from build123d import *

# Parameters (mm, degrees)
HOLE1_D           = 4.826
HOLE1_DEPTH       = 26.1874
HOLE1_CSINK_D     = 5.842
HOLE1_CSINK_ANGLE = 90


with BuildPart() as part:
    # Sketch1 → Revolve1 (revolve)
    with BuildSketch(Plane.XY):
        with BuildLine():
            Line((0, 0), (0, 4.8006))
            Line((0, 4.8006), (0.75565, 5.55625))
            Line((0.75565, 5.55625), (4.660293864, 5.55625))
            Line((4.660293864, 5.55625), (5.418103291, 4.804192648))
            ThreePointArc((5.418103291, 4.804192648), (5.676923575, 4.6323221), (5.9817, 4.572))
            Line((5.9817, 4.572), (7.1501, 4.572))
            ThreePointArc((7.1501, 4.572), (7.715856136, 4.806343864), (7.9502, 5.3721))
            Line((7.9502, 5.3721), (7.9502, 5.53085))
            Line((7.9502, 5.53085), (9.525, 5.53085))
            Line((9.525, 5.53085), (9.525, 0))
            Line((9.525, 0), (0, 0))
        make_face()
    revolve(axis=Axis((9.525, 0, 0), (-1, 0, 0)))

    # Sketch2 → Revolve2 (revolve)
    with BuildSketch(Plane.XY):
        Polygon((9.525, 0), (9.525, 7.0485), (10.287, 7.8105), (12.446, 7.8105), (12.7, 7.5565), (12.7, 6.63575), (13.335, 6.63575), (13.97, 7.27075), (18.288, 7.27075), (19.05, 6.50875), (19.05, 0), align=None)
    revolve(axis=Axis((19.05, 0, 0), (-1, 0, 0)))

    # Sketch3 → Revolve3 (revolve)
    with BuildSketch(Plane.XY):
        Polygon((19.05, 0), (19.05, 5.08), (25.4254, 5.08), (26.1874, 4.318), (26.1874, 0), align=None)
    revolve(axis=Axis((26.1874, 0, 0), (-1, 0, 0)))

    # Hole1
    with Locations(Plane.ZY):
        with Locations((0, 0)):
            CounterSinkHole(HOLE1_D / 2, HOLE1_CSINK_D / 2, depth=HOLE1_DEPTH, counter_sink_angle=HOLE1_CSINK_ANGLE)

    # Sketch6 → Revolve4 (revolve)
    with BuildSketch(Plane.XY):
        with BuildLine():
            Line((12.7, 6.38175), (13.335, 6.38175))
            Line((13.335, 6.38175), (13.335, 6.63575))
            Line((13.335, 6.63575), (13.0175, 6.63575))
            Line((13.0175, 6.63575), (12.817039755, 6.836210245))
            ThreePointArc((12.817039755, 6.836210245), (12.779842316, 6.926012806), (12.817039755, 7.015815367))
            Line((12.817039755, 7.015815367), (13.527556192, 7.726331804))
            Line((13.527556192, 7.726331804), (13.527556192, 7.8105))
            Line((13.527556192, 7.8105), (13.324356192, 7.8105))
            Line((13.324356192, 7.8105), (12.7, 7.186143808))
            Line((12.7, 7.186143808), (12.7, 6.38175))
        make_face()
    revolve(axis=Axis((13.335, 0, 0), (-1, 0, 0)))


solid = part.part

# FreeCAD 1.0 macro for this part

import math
import FreeCAD as App
import Part
import Sketcher
Q = App.Units.Quantity


def add_polygon(sketch, points):
    """Adds a closed chain of lines whose ends are joined by coincident constraints."""
    first, n = sketch.GeometryCount, len(points)
    for a, b in zip(points, points[1:] + points[:1]):
        sketch.addGeometry(Part.LineSegment(App.Vector(*a, 0), App.Vector(*b, 0)), False)
    for i in range(n):
        sketch.addConstraint(Sketcher.Constraint("Coincident", first + i, 2, first + (i + 1) % n, 1))

doc = App.newDocument("Part")
body = doc.addObject("PartDesign::Body", "Body")

# Sketch on XY plane
sketch1 = doc.addObject("Sketcher::SketchObject", "Sketch")
body.addObject(sketch1)
sketch1.AttachmentSupport = (doc.XY_Plane, [""])
sketch1.MapMode = "FlatFace"
sketch1.addGeometry([
    Part.LineSegment(App.Vector(0, 4.8, 0), App.Vector(0, 0, 0)),  # 0
    Part.LineSegment(App.Vector(0, 0, 0), App.Vector(9.53, 0, 0)),  # 1
    Part.LineSegment(App.Vector(9.53, 0, 0), App.Vector(9.53, 5.53, 0)),  # 2
    Part.LineSegment(App.Vector(9.53, 5.53, 0), App.Vector(7.95, 5.53, 0)),  # 3
    Part.LineSegment(App.Vector(7.95, 5.53, 0), App.Vector(7.95, 5.37, 0)),  # 4
    Part.ArcOfCircle(Part.Circle(App.Vector(7.15, 5.37, 0), App.Vector(0, 0, 1), 0.8), math.radians(-90), math.radians(0)),  # 5
    Part.LineSegment(App.Vector(7.15, 4.57, 0), App.Vector(5.98, 4.57, 0)),  # 6
    Part.ArcOfCircle(Part.Circle(App.Vector(5.98, 5.37, 0), App.Vector(0, 0, 1), 0.8), math.radians(-135), math.radians(-90)),  # 7
    Part.LineSegment(App.Vector(5.42, 4.8, 0), App.Vector(4.66, 5.56, 0)),  # 8
    Part.LineSegment(App.Vector(4.66, 5.56, 0), App.Vector(0.76, 5.56, 0)),  # 9
    Part.LineSegment(App.Vector(0.76, 5.56, 0), App.Vector(0, 4.8, 0)),  # 10
], False)
sketch1.addConstraint([
    Sketcher.Constraint("Coincident", 0, 2, 1, 1),
    Sketcher.Constraint("Coincident", 1, 2, 2, 1),
    Sketcher.Constraint("Coincident", 2, 2, 3, 1),
    Sketcher.Constraint("Coincident", 3, 2, 4, 1),
    Sketcher.Constraint("Tangent", 4, 2, 5, 2),
    Sketcher.Constraint("Tangent", 5, 1, 6, 1),
    Sketcher.Constraint("Tangent", 6, 2, 7, 2),
    Sketcher.Constraint("Tangent", 7, 1, 8, 1),
    Sketcher.Constraint("Coincident", 8, 2, 9, 1),
    Sketcher.Constraint("Coincident", 9, 2, 10, 1),
    Sketcher.Constraint("Coincident", 10, 2, 0, 1),
    Sketcher.Constraint("Vertical", 0),
    Sketcher.Constraint("Horizontal", 1),
    Sketcher.Constraint("Vertical", 2),
    Sketcher.Constraint("Horizontal", 3),
    Sketcher.Constraint("Vertical", 4),
    Sketcher.Constraint("Horizontal", 6),
    Sketcher.Constraint("Horizontal", 9),
    Sketcher.Constraint("Coincident", 0, 2, -1, 1),
    Sketcher.Constraint("Equal", 5, 7),
    Sketcher.Constraint("Angle", 10, Q("-135 deg")),
    Sketcher.Constraint("Radius", 5, Q("0.0315 in")),
    Sketcher.Constraint("DistanceX", 1, 1, 1, 2, Q("0.375 in")),
    Sketcher.Constraint("DistanceX", 3, 2, 3, 1, Q("0.062 in")),
    Sketcher.Constraint("DistanceX", 6, 2, 6, 1, Q("0.046 in")),
    Sketcher.Constraint("DistanceY", 0, 2, 0, 1, Q("0.189 in")),
    Sketcher.Constraint("DistanceY", -1, 1, 5, 1, Q("0.18 in")),
    Sketcher.Constraint("DistanceY", -1, 1, 8, 2, Q("0.21875 in")),
    Sketcher.Constraint("DistanceY", 2, 1, 2, 2, Q("5.53085 mm")),
    Sketcher.Constraint("DistanceX", 9, 2, 9, 1, Q("3.904644 mm")),
])
revolution = doc.addObject("PartDesign::Revolution", "Revolution")
body.addObject(revolution)
revolution.Profile = sketch1
revolution.ReferenceAxis = (sketch1, ["H_Axis"])
revolution.Angle = 360

# Sketch on XY plane
sketch2 = doc.addObject("Sketcher::SketchObject", "Sketch001")
body.addObject(sketch2)
sketch2.AttachmentSupport = (doc.XY_Plane, [""])
sketch2.MapMode = "FlatFace"
add_polygon(sketch2, [(9.53, 7.05), (9.53, 0), (19.05, 0), (19.05, 6.51), (18.29, 7.27), (13.97, 7.27), (13.34, 6.64), (12.7, 6.64), (12.7, 7.56), (12.45, 7.81), (10.29, 7.81)])  # lines 0-10
sketch2.addConstraint([
    Sketcher.Constraint("Vertical", 0),
    Sketcher.Constraint("Horizontal", 1),
    Sketcher.Constraint("Vertical", 2),
    Sketcher.Constraint("Horizontal", 4),
    Sketcher.Constraint("Horizontal", 6),
    Sketcher.Constraint("Vertical", 7),
    Sketcher.Constraint("Horizontal", 9),
    Sketcher.Constraint("PointOnObject", 0, 2, -1),
    Sketcher.Constraint("Perpendicular", 3, 5),
    Sketcher.Constraint("Perpendicular", 5, 8),
    Sketcher.Constraint("Perpendicular", 8, 10),
    Sketcher.Constraint("Equal", 3, 10),
    Sketcher.Constraint("Angle", 3, Q("135 deg")),
    Sketcher.Constraint("DistanceX", 4, 2, 4, 1, Q("0.17 in")),
    Sketcher.Constraint("DistanceX", -1, 1, 6, 2, Q("0.5 in")),
    Sketcher.Constraint("DistanceX", 4, 2, 2, 2, Q("0.2 in")),
    Sketcher.Constraint("DistanceX", 1, 1, 1, 2, Q("0.375 in")),
    Sketcher.Constraint("DistanceX", 6, 2, 6, 1, Q("0.025 in")),
    Sketcher.Constraint("DistanceX", 9, 2, 9, 1, Q("0.085 in")),
    Sketcher.Constraint("DistanceX", -1, 1, 1, 2, Q("0.75 in")),
    Sketcher.Constraint("DistanceY", 0, 2, 0, 1, Q("0.2775 in")),
    Sketcher.Constraint("DistanceY", 2, 1, 2, 2, Q("6.50875 mm")),
])
revolution2 = doc.addObject("PartDesign::Revolution", "Revolution001")
body.addObject(revolution2)
revolution2.Profile = sketch2
revolution2.ReferenceAxis = (sketch2, ["H_Axis"])
revolution2.Angle = 360

# Sketch on XY plane
sketch3 = doc.addObject("Sketcher::SketchObject", "Sketch002")
body.addObject(sketch3)
sketch3.AttachmentSupport = (doc.XY_Plane, [""])
sketch3.MapMode = "FlatFace"
add_polygon(sketch3, [(19.1, 5.1), (19.1, 0), (26.2, 0), (26.2, 4.3), (25.4, 5.1)])  # lines 0-4
sketch3.addConstraint([
    Sketcher.Constraint("Vertical", 0),
    Sketcher.Constraint("Horizontal", 1),
    Sketcher.Constraint("Vertical", 2),
    Sketcher.Constraint("Horizontal", 4),
    Sketcher.Constraint("PointOnObject", 0, 2, -1),
    Sketcher.Constraint("DistanceY", 0, 2, 0, 1, Q("0.2 in")),
    Sketcher.Constraint("Angle", 3, Q("135 deg")),
    Sketcher.Constraint("DistanceY", 2, 1, 2, 2, Q("0.17 in")),
    Sketcher.Constraint("DistanceX", 1, 1, 1, 2, Q("0.281 in")),
    Sketcher.Constraint("DistanceX", -1, 1, 0, 2, Q("0.75 in")),
])
revolution3 = doc.addObject("PartDesign::Revolution", "Revolution002")
body.addObject(revolution3)
revolution3.Profile = sketch3
revolution3.ReferenceAxis = (sketch3, ["H_Axis"])
revolution3.Angle = 360

# Sketch on YZ plane
sketch4 = doc.addObject("Sketcher::SketchObject", "Sketch003")
body.addObject(sketch4)
sketch4.AttachmentSupport = (doc.YZ_Plane, [""])
sketch4.MapMode = "FlatFace"
sketch4.addGeometry(Part.Circle(App.Vector(0, 0, 0), App.Vector(0, 0, 1), 2.4), False)
sketch4.addConstraint([
    Sketcher.Constraint("Coincident", 0, 3, -1, 1),
    Sketcher.Constraint("Diameter", 0, Q("0.19 in")),
])
doc.recompute()
hole = doc.addObject("PartDesign::Hole", "Hole")
body.addObject(hole)
hole.Profile = sketch4
hole.ThreadType = "None"
hole.Diameter = Q("0.19 in")
hole.DepthType = "Dimension"
hole.Depth = Q("1.031 in")
hole.DrillPoint = "Flat"
hole.HoleCutType = "Countersink"
hole.HoleCutDiameter = Q("0.23 in")
hole.HoleCutCountersinkAngle = 90
hole.Reversed = True

# Sketch on XY plane
sketch5 = doc.addObject("Sketcher::SketchObject", "Sketch004")
body.addObject(sketch5)
sketch5.AttachmentSupport = (doc.XY_Plane, [""])
sketch5.MapMode = "FlatFace"
sketch5.addGeometry([
    Part.LineSegment(App.Vector(12.7, 6.38, 0), App.Vector(13.34, 6.38, 0)),  # 0
    Part.LineSegment(App.Vector(13.34, 6.38, 0), App.Vector(13.34, 6.64, 0)),  # 1
    Part.LineSegment(App.Vector(13.34, 6.64, 0), App.Vector(13.02, 6.64, 0)),  # 2
    Part.LineSegment(App.Vector(13.02, 6.64, 0), App.Vector(12.82, 6.84, 0)),  # 3
    Part.ArcOfCircle(Part.Circle(App.Vector(12.91, 6.93, 0), App.Vector(0, 0, 1), 0.13), math.radians(135), math.radians(225)),  # 4
    Part.LineSegment(App.Vector(12.82, 7.02, 0), App.Vector(13.53, 7.73, 0)),  # 5
    Part.LineSegment(App.Vector(13.53, 7.73, 0), App.Vector(13.53, 7.81, 0)),  # 6
    Part.LineSegment(App.Vector(13.53, 7.81, 0), App.Vector(13.32, 7.81, 0)),  # 7
    Part.LineSegment(App.Vector(13.32, 7.81, 0), App.Vector(12.7, 7.19, 0)),  # 8
    Part.LineSegment(App.Vector(12.7, 7.19, 0), App.Vector(12.7, 6.38, 0)),  # 9
], False)
sketch5.addConstraint([
    Sketcher.Constraint("Coincident", 0, 2, 1, 1),
    Sketcher.Constraint("Coincident", 1, 2, 2, 1),
    Sketcher.Constraint("Coincident", 2, 2, 3, 1),
    Sketcher.Constraint("Tangent", 3, 2, 4, 2),
    Sketcher.Constraint("Tangent", 4, 1, 5, 1),
    Sketcher.Constraint("Coincident", 5, 2, 6, 1),
    Sketcher.Constraint("Coincident", 6, 2, 7, 1),
    Sketcher.Constraint("Coincident", 7, 2, 8, 1),
    Sketcher.Constraint("Coincident", 8, 2, 9, 1),
    Sketcher.Constraint("Coincident", 9, 2, 0, 1),
    Sketcher.Constraint("Horizontal", 0),
    Sketcher.Constraint("Vertical", 1),
    Sketcher.Constraint("Horizontal", 2),
    Sketcher.Constraint("Vertical", 6),
    Sketcher.Constraint("Horizontal", 7),
    Sketcher.Constraint("Vertical", 9),
    Sketcher.Constraint("Perpendicular", 3, 5),
    Sketcher.Constraint("Parallel", 5, 8),
    Sketcher.Constraint("Vertical", 3, 2, 4, 1),
    Sketcher.Constraint("Radius", 4, Q("0.005 in")),
    Sketcher.Constraint("DistanceY", 1, 1, 1, 2, Q("0.01 in")),
    Sketcher.Constraint("DistanceX", -1, 1, 8, 2, Q("0.5 in")),
    Sketcher.Constraint("DistanceX", 0, 1, 0, 2, Q("0.025 in")),
    Sketcher.Constraint("DistanceX", 7, 2, 7, 1, Q("0.008 in")),
    Sketcher.Constraint("DistanceX", 2, 2, 2, 1, Q("0.0125 in")),
    Sketcher.Constraint("DistanceY", -1, 1, 6, 2, Q("0.3075 in")),
    Sketcher.Constraint("DistanceY", 6, 1, 6, 2, Q("0.084168 mm")),
    Sketcher.Constraint("Distance", 5, Q("1.004822 mm")),
    Sketcher.Constraint("DistanceY", 9, 2, 9, 1, Q("0.804394 mm")),
])
revolution4 = doc.addObject("PartDesign::Revolution", "Revolution003")
body.addObject(revolution4)
revolution4.Profile = sketch5
revolution4.ReferenceAxis = (sketch5, ["H_Axis"])
revolution4.Angle = 360

doc.recompute()
